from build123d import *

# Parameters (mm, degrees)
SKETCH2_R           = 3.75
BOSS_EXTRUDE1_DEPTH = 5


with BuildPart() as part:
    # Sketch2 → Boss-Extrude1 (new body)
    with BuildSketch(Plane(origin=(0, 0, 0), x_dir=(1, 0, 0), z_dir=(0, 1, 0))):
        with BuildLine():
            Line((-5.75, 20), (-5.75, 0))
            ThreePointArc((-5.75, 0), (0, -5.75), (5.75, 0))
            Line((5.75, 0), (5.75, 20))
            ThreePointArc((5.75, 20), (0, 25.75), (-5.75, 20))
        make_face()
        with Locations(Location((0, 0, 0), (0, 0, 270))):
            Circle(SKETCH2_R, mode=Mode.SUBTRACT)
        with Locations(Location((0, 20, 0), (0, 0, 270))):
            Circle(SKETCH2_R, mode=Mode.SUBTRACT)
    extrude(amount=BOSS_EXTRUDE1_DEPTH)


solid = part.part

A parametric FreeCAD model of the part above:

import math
import FreeCAD as App
import Part
import Sketcher
from FreeCAD import Vector

doc = App.newDocument("Part")
body = doc.addObject("PartDesign::Body", "Body")

# Sketch on XZ plane
sketch1 = body.newObject("Sketcher::SketchObject", "Sketch")
sketch1.AttachmentSupport = (doc.getObject("XZ_Plane"), [""])
sketch1.MapMode = "FlatFace"
sketch1.addGeometry([
    Part.LineSegment(Vector(-5.8, -20, 0), Vector(-5.8, 0, 0)),  # 0
    Part.ArcOfCircle(Part.Circle(Vector(0, 0, 0), Vector(0, 0, 1), 5.8), math.radians(0), math.radians(180)),  # 1
    Part.LineSegment(Vector(5.8, 0, 0), Vector(5.8, -20, 0)),  # 2
    Part.ArcOfCircle(Part.Circle(Vector(0, -20, 0), Vector(0, 0, 1), 5.8), math.radians(180), math.radians(360)),  # 3
    Part.Circle(Vector(0, 0, 0), Vector(0, 0, 1), 3.8),  # 4
    Part.Circle(Vector(0, -20, 0), Vector(0, 0, 1), 3.8),  # 5
], False)
sketch1.addConstraint([
    Sketcher.Constraint("Tangent", 0, 2, 1, 2),
    Sketcher.Constraint("Tangent", 1, 1, 2, 1),
    Sketcher.Constraint("Tangent", 2, 2, 3, 2),
    Sketcher.Constraint("Tangent", 3, 1, 0, 1),
    Sketcher.Constraint("Vertical", 0),
    Sketcher.Constraint("Vertical", 2),
    Sketcher.Constraint("Coincident", 1, 3, -1, 1),
    Sketcher.Constraint("Coincident", 4, 3, -1, 1),
    Sketcher.Constraint("Coincident", 5, 3, 3, 3),
    Sketcher.Constraint("Equal", 4, 5),
    Sketcher.Constraint("Diameter", 4, 7.5),
    Sketcher.Constraint("DistanceY", 0, 1, 0, 2, 20.0),
    Sketcher.Constraint("Radius", 1, 5.75),
])
pad1 = body.newObject("PartDesign::Pad", "Pad")
pad1.Profile = sketch1
pad1.Length = 5
pad1.Reversed = True

doc.recompute()
